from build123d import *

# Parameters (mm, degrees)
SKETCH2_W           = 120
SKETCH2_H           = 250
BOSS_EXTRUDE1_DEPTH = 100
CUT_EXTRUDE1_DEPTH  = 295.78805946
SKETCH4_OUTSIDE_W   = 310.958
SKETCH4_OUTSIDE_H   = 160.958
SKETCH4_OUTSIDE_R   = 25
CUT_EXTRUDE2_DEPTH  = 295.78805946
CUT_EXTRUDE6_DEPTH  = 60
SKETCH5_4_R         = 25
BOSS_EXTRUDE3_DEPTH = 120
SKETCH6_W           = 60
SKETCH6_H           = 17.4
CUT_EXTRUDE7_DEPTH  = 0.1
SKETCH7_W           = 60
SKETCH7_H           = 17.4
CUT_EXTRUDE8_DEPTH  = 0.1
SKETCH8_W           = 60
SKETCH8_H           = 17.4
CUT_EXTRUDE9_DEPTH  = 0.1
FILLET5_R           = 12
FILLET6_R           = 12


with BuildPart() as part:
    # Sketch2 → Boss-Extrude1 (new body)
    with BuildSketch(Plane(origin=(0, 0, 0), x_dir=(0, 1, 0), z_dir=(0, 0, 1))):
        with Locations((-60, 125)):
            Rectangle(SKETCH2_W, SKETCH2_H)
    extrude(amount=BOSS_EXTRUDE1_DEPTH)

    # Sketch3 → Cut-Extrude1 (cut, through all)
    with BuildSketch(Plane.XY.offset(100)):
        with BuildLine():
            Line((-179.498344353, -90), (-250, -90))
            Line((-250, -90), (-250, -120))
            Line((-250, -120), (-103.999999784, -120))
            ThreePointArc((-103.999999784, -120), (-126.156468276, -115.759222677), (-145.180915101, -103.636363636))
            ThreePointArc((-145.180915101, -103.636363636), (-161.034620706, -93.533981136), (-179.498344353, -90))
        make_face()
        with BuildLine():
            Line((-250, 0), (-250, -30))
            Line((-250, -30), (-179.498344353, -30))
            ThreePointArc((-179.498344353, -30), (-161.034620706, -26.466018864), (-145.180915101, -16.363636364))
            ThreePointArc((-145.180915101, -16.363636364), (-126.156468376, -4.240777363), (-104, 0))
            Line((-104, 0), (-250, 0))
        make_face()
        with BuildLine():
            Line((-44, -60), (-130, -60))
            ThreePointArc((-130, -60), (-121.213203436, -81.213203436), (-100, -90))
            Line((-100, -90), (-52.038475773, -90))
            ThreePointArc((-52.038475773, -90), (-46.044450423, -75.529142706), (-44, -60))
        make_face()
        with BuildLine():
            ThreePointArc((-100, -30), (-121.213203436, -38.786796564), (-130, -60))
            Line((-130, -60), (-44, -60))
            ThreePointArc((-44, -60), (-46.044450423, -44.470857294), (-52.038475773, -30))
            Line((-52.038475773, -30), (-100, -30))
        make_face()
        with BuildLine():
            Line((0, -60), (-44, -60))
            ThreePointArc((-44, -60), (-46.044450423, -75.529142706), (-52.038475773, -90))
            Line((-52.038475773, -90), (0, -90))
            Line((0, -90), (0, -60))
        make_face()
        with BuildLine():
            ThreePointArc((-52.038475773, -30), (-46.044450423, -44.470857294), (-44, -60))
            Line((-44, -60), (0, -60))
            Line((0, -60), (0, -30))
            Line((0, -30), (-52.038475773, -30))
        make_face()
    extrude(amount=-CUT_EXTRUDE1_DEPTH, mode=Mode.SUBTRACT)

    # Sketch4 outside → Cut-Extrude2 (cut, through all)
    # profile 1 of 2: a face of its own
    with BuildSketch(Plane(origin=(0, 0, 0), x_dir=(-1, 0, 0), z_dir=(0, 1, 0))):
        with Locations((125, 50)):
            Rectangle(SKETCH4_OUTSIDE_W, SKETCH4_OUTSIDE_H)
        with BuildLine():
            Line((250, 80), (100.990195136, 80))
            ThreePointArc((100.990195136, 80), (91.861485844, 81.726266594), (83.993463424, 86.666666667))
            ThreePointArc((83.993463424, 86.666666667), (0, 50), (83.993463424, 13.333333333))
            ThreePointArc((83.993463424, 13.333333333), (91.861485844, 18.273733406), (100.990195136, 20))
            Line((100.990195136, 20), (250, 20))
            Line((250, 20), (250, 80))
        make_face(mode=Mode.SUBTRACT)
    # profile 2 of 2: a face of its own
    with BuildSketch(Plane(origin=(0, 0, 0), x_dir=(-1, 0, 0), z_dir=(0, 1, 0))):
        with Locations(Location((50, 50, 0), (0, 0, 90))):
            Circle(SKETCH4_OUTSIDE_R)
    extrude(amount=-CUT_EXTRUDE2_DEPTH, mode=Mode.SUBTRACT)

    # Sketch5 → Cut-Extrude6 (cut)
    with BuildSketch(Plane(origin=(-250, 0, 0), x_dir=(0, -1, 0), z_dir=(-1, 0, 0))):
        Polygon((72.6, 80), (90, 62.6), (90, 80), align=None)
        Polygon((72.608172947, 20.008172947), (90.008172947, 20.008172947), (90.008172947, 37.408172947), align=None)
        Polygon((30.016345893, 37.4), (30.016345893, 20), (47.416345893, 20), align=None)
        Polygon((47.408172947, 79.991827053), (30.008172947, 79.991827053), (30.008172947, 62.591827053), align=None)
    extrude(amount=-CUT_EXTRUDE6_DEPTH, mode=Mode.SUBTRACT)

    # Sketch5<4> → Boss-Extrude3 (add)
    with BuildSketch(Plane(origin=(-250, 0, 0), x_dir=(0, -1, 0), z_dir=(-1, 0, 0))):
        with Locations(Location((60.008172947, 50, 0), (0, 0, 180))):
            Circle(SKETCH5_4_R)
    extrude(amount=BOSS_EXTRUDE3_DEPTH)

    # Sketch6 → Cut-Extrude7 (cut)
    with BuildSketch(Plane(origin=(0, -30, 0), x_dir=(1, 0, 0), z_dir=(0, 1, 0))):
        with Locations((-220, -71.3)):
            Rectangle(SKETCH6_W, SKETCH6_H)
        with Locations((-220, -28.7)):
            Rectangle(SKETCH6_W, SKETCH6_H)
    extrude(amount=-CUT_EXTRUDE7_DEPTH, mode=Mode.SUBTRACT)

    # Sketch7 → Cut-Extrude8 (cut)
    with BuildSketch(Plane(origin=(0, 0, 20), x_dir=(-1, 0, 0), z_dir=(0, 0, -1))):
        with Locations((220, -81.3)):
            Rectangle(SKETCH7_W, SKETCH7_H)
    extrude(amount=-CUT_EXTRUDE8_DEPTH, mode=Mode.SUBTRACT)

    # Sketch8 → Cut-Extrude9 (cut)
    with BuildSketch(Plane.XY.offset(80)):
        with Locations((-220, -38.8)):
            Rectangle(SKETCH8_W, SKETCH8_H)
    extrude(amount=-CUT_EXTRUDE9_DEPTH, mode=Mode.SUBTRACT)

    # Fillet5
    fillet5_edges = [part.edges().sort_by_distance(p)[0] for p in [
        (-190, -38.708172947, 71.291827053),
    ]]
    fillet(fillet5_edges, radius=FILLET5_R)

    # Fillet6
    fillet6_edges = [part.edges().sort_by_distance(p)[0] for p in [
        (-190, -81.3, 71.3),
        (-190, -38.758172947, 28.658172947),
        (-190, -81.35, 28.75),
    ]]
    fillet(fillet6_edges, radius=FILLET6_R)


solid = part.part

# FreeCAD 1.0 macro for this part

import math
import FreeCAD as App
import Part
import Sketcher

V = App.Vector


def edges_at(feature, points):
    """Names of the edges that pass closest to the given points."""
    edges = feature.Shape.Edges
    near = lambda p: min(range(len(edges)), key=lambda i: edges[i].distToShape(Part.Vertex(*p))[0])
    return sorted({f"Edge{near(p) + 1}" for p in points})


def add_polygon(sketch, points):
    """Adds a closed chain of lines whose ends are joined by coincident constraints."""
    first, n = sketch.GeometryCount, len(points)
    for a, b in zip(points, points[1:] + points[:1]):
        sketch.addGeometry(Part.LineSegment(App.Vector(*a, 0), App.Vector(*b, 0)), False)
    for i in range(n):
        sketch.addConstraint(Sketcher.Constraint("Coincident", first + i, 2, first + (i + 1) % n, 1))

doc = App.newDocument("Part")
body = doc.addObject("PartDesign::Body", "Body")

# Sketch on XY plane
sketch1 = body.newObject("Sketcher::SketchObject", "Sketch")
sketch1.AttachmentSupport = (doc.getObject("XY_Plane"), [""])
sketch1.MapMode = "FlatFace"
add_polygon(sketch1, [(-250, -120), (0, -120), (0, 0), (-250, 0)])  # lines 0-3
sketch1.addConstraint(Sketcher.Constraint("Horizontal", 0))
sketch1.addConstraint(Sketcher.Constraint("Vertical", 1))
sketch1.addConstraint(Sketcher.Constraint("Horizontal", 2))
sketch1.addConstraint(Sketcher.Constraint("Vertical", 3))
sketch1.addConstraint(Sketcher.Constraint("Coincident", 1, 2, -1, 1))
sketch1.addConstraint(Sketcher.Constraint("DistanceX", 0, 1, 0, 2, 250.0))
sketch1.addConstraint(Sketcher.Constraint("DistanceY", 1, 1, 1, 2, 120.0))
pad1 = body.newObject("PartDesign::Pad", "Pad")
pad1.Profile = sketch1
pad1.Length = 100

# Sketch on XY plane
sketch2 = body.newObject("Sketcher::SketchObject", "Sketch001")
sketch2.AttachmentSupport = (doc.getObject("XY_Plane"), [""])
sketch2.MapMode = "FlatFace"
sketch2.AttachmentOffset = App.Placement(V(0, 0, 100), App.Rotation())
sketch2.addGeometry(Part.LineSegment(V(-179, -90, 0), V(-250, -90, 0)), False)
sketch2.addGeometry(Part.LineSegment(V(-250, -90, 0), V(-250, -120, 0)), False)
sketch2.addGeometry(Part.LineSegment(V(-250, -120, 0), V(-104, -120, 0)), False)
sketch2.addGeometry(Part.ArcOfCircle(Part.Circle(V(-104, -60, 0), V(0, 0, 1), 60), math.radians(-133), math.radians(-90)), False)
sketch2.addGeometry(Part.ArcOfCircle(Part.Circle(V(-179, -140, 0), V(0, 0, 1), 50), math.radians(47), math.radians(90)), False)
sketch2.addGeometry(Part.LineSegment(V(-250, 0, 0), V(-250, -30, 0)), False)
sketch2.addGeometry(Part.LineSegment(V(-250, -30, 0), V(-179, -30, 0)), False)
sketch2.addGeometry(Part.ArcOfCircle(Part.Circle(V(-179, 20, 0), V(0, 0, 1), 50), math.radians(-90), math.radians(-47)), False)
sketch2.addGeometry(Part.ArcOfCircle(Part.Circle(V(-104, -60, 0), V(0, 0, 1), 60), math.radians(90), math.radians(133)), False)
sketch2.addGeometry(Part.LineSegment(V(-104, 0, 0), V(-250, 0, 0)), False)
sketch2.addGeometry(Part.ArcOfCircle(Part.Circle(V(-100, -60, 0), V(0, 0, 1), 30), math.radians(180), math.radians(270)), False)
sketch2.addGeometry(Part.LineSegment(V(-100, -90, 0), V(0, -90, 0)), False)
sketch2.addGeometry(Part.LineSegment(V(0, -90, 0), V(0, -30, 0)), False)
sketch2.addGeometry(Part.LineSegment(V(0, -30, 0), V(-100, -30, 0)), False)
sketch2.addGeometry(Part.ArcOfCircle(Part.Circle(V(-100, -60, 0), V(0, 0, 1), 30), math.radians(90), math.radians(180)), False)
sketch2.addConstraint(Sketcher.Constraint("Coincident", 0, 2, 1, 1))
sketch2.addConstraint(Sketcher.Constraint("Coincident", 1, 2, 2, 1))
sketch2.addConstraint(Sketcher.Constraint("Tangent", 2, 2, 3, 2))
sketch2.addConstraint(Sketcher.Constraint("Tangent", 3, 1, 4, 1))
sketch2.addConstraint(Sketcher.Constraint("Tangent", 4, 2, 0, 1))
sketch2.addConstraint(Sketcher.Constraint("Coincident", 5, 2, 6, 1))
sketch2.addConstraint(Sketcher.Constraint("Tangent", 6, 2, 7, 1))
sketch2.addConstraint(Sketcher.Constraint("Tangent", 7, 2, 8, 2))
sketch2.addConstraint(Sketcher.Constraint("Tangent", 8, 1, 9, 1))
sketch2.addConstraint(Sketcher.Constraint("Coincident", 9, 2, 5, 1))
sketch2.addConstraint(Sketcher.Constraint("Tangent", 10, 2, 11, 1))
sketch2.addConstraint(Sketcher.Constraint("Coincident", 11, 2, 12, 1))
sketch2.addConstraint(Sketcher.Constraint("Coincident", 12, 2, 13, 1))
sketch2.addConstraint(Sketcher.Constraint("Tangent", 13, 2, 14, 1))
sketch2.addConstraint(Sketcher.Constraint("Tangent", 14, 2, 10, 1))
sketch2.addConstraint(Sketcher.Constraint("Horizontal", 0))
sketch2.addConstraint(Sketcher.Constraint("Vertical", 1))
sketch2.addConstraint(Sketcher.Constraint("Horizontal", 2))
sketch2.addConstraint(Sketcher.Constraint("Vertical", 5))
sketch2.addConstraint(Sketcher.Constraint("Horizontal", 6))
sketch2.addConstraint(Sketcher.Constraint("Horizontal", 9))
sketch2.addConstraint(Sketcher.Constraint("Horizontal", 11))
sketch2.addConstraint(Sketcher.Constraint("Vertical", 12))
sketch2.addConstraint(Sketcher.Constraint("Horizontal", 13))
sketch2.addConstraint(Sketcher.Constraint("Coincident", 8, 3, 3, 3))
sketch2.addConstraint(Sketcher.Constraint("Equal", 4, 7))
sketch2.addConstraint(Sketcher.Constraint("Equal", 3, 8))
sketch2.addConstraint(Sketcher.Constraint("Equal", 10, 14))
sketch2.addConstraint(Sketcher.Constraint("PointOnObject", 8, 1, -1))
sketch2.addConstraint(Sketcher.Constraint("PointOnObject", 11, 2, -2))
sketch2.addConstraint(Sketcher.Constraint("Horizontal", 8, 3, 10, 3))
sketch2.addConstraint(Sketcher.Constraint("Horizontal", 4, 2, 10, 2))
sketch2.addConstraint(Sketcher.Constraint("Horizontal", 6, 2, 12, 2))
sketch2.addConstraint(Sketcher.Constraint("Horizontal", 10, 3, 14, 2))
sketch2.addConstraint(Sketcher.Constraint("Vertical", 1, 2, 5, 2))
sketch2.addConstraint(Sketcher.Constraint("Radius", 3, 60.0))
sketch2.addConstraint(Sketcher.Constraint("Radius", 4, 50.0))
sketch2.addConstraint(Sketcher.Constraint("Radius", 10, 30.0))
sketch2.addConstraint(Sketcher.Constraint("DistanceX", 2, 1, 2, 2, 146.0))
sketch2.addConstraint(Sketcher.Constraint("DistanceX", 11, 1, 11, 2, 100.0))
sketch2.addConstraint(Sketcher.Constraint("DistanceX", 3, 3, -1, 1, 104.0))
pocket1 = body.newObject("PartDesign::Pocket", "Pocket")
pocket1.Profile = sketch2
pocket1.Type = "ThroughAll"

# Sketch on XZ plane
sketch3 = body.newObject("Sketcher::SketchObject", "Sketch002")
sketch3.AttachmentSupport = (doc.getObject("XZ_Plane"), [""])
sketch3.MapMode = "FlatFace"
add_polygon(sketch3, [(30, 130), (30, -30), (-280, -30), (-280, 130)])  # lines 0-3
sketch3.addGeometry(Part.LineSegment(V(-101, 80, 0), V(-250, 80, 0)), False)  # 4
sketch3.addGeometry(Part.LineSegment(V(-250, 80, 0), V(-250, 20, 0)), False)  # 5
sketch3.addGeometry(Part.LineSegment(V(-250, 20, 0), V(-101, 20, 0)), False)  # 6
sketch3.addGeometry(Part.ArcOfCircle(Part.Circle(V(-101, -5, 0), V(0, 0, 1), 25), math.radians(47), math.radians(90)), False)  # 7
sketch3.addGeometry(Part.ArcOfCircle(Part.Circle(V(-50, 50, 0), V(0, 0, 1), 50), math.radians(-133), math.radians(133)), False)  # 8
sketch3.addGeometry(Part.ArcOfCircle(Part.Circle(V(-101, 105, 0), V(0, 0, 1), 25), math.radians(-90), math.radians(-47)), False)  # 9
sketch3.addGeometry(Part.Circle(V(-50, 50, 0), V(0, 0, 1), 25), False)  # 10
sketch3.addConstraint(Sketcher.Constraint("Coincident", 4, 2, 5, 1))
sketch3.addConstraint(Sketcher.Constraint("Coincident", 5, 2, 6, 1))
sketch3.addConstraint(Sketcher.Constraint("Tangent", 6, 2, 7, 2))
sketch3.addConstraint(Sketcher.Constraint("Tangent", 7, 1, 8, 1))
sketch3.addConstraint(Sketcher.Constraint("Tangent", 8, 2, 9, 2))
sketch3.addConstraint(Sketcher.Constraint("Tangent", 9, 1, 4, 1))
sketch3.addConstraint(Sketcher.Constraint("Vertical", 0))
sketch3.addConstraint(Sketcher.Constraint("Horizontal", 1))
sketch3.addConstraint(Sketcher.Constraint("Vertical", 2))
sketch3.addConstraint(Sketcher.Constraint("Horizontal", 3))
sketch3.addConstraint(Sketcher.Constraint("Horizontal", 4))
sketch3.addConstraint(Sketcher.Constraint("Vertical", 5))
sketch3.addConstraint(Sketcher.Constraint("Horizontal", 6))
sketch3.addConstraint(Sketcher.Constraint("Coincident", 10, 3, 8, 3))
sketch3.addConstraint(Sketcher.Constraint("Equal", 7, 9))
sketch3.addConstraint(Sketcher.Constraint("Equal", 9, 10))
sketch3.addConstraint(Sketcher.Constraint("Vertical", 7, 3, 9, 3))
sketch3.addConstraint(Sketcher.Constraint("Diameter", 10, 50.0))
sketch3.addConstraint(Sketcher.Constraint("Radius", 8, 50.0))
sketch3.addConstraint(Sketcher.Constraint("DistanceY", 5, 2, 5, 1, 60.0))
sketch3.addConstraint(Sketcher.Constraint("DistanceY", 7, 3, -1, 1, 5.0))
sketch3.addConstraint(Sketcher.Constraint("DistanceX", 8, 3, -1, 1, 50.0))
sketch3.addConstraint(Sketcher.Constraint("DistanceX", 4, 2, -1, 1, 250.0))
sketch3.addConstraint(Sketcher.Constraint("DistanceX", 1, 2, 1, 1, 310.958))
sketch3.addConstraint(Sketcher.Constraint("DistanceY", 0, 2, 0, 1, 160.958))
sketch3.addConstraint(Sketcher.Constraint("DistanceX", -1, 1, 0, 2, 30.479))
sketch3.addConstraint(Sketcher.Constraint("DistanceY", 0, 2, -1, 1, 30.479))
pocket2 = body.newObject("PartDesign::Pocket", "Pocket001")
pocket2.Profile = sketch3
pocket2.Length = 295.788059
pocket2.Reversed = True

# Sketch on YZ plane
sketch4 = body.newObject("Sketcher::SketchObject", "Sketch003")
sketch4.AttachmentSupport = (doc.getObject("YZ_Plane"), [""])
sketch4.MapMode = "FlatFace"
sketch4.AttachmentOffset = App.Placement(V(0, 0, -250), App.Rotation())
add_polygon(sketch4, [(-73, 80), (-90, 63), (-90, 80)])  # lines 0-2
add_polygon(sketch4, [(-73, 20), (-90, 20), (-90, 37)])  # lines 3-5
add_polygon(sketch4, [(-30, 37), (-30, 20), (-47, 20)])  # lines 6-8
add_polygon(sketch4, [(-47, 80), (-30, 80), (-30, 63)])  # lines 9-11
sketch4.addConstraint(Sketcher.Constraint("Vertical", 1))
sketch4.addConstraint(Sketcher.Constraint("Horizontal", 2))
sketch4.addConstraint(Sketcher.Constraint("Horizontal", 3))
sketch4.addConstraint(Sketcher.Constraint("Vertical", 4))
sketch4.addConstraint(Sketcher.Constraint("Vertical", 6))
sketch4.addConstraint(Sketcher.Constraint("Horizontal", 7))
sketch4.addConstraint(Sketcher.Constraint("Horizontal", 9))
sketch4.addConstraint(Sketcher.Constraint("Vertical", 10))
sketch4.addConstraint(Sketcher.Constraint("Perpendicular", 0, 5))
sketch4.addConstraint(Sketcher.Constraint("Perpendicular", 5, 8))
sketch4.addConstraint(Sketcher.Constraint("Perpendicular", 8, 11))
sketch4.addConstraint(Sketcher.Constraint("Equal", 2, 3))
sketch4.addConstraint(Sketcher.Constraint("Equal", 3, 7))
sketch4.addConstraint(Sketcher.Constraint("Equal", 7, 9))
sketch4.addConstraint(Sketcher.Constraint("Equal", 9, 1))
sketch4.addConstraint(Sketcher.Constraint("DistanceX", 2, 1, 2, 2, 17.4))
sketch4.addConstraint(Sketcher.Constraint("DistanceX", 0, 2, -1, 1, 90.0))
sketch4.addConstraint(Sketcher.Constraint("DistanceY", -1, 1, 1, 2, 80.0))
sketch4.addConstraint(Sketcher.Constraint("DistanceY", -1, 1, 6, 2, 20.0))
sketch4.addConstraint(Sketcher.Constraint("DistanceX", 3, 2, -1, 1, 90.008173))
sketch4.addConstraint(Sketcher.Constraint("DistanceY", -1, 1, 3, 2, 20.008173))
sketch4.addConstraint(Sketcher.Constraint("DistanceX", 6, 2, -1, 1, 30.016346))
sketch4.addConstraint(Sketcher.Constraint("DistanceX", 9, 2, -1, 1, 30.008173))
sketch4.addConstraint(Sketcher.Constraint("DistanceY", -1, 1, 9, 2, 79.991827))
pocket3 = body.newObject("PartDesign::Pocket", "Pocket002")
pocket3.Profile = sketch4
pocket3.Length = 60
pocket3.Reversed = True

# Sketch on YZ plane
sketch5 = body.newObject("Sketcher::SketchObject", "Sketch004")
sketch5.AttachmentSupport = (doc.getObject("YZ_Plane"), [""])
sketch5.MapMode = "FlatFace"
sketch5.AttachmentOffset = App.Placement(V(0, 0, -250), App.Rotation())
sketch5.addGeometry(Part.Circle(V(-60, 50, 0), V(0, 0, 1), 25), False)
sketch5.addConstraint(Sketcher.Constraint("Diameter", 0, 50.0))
sketch5.addConstraint(Sketcher.Constraint("DistanceY", -1, 1, 0, 3, 50.0))
sketch5.addConstraint(Sketcher.Constraint("DistanceX", 0, 3, -1, 1, 60.008173))
pad2 = body.newObject("PartDesign::Pad", "Pad001")
pad2.Profile = sketch5
pad2.Length = 120
pad2.Reversed = True

# Sketch on XZ plane
sketch6 = body.newObject("Sketcher::SketchObject", "Sketch005")
sketch6.AttachmentSupport = (doc.getObject("XZ_Plane"), [""])
sketch6.MapMode = "FlatFace"
sketch6.AttachmentOffset = App.Placement(V(0, 0, 30), App.Rotation())
add_polygon(sketch6, [(-250, 63), (-250, 80), (-190, 80), (-190, 63)])  # lines 0-3
add_polygon(sketch6, [(-250, 20), (-250, 37), (-190, 37), (-190, 20)])  # lines 4-7
sketch6.addConstraint(Sketcher.Constraint("Vertical", 0))
sketch6.addConstraint(Sketcher.Constraint("Horizontal", 1))
sketch6.addConstraint(Sketcher.Constraint("Vertical", 2))
sketch6.addConstraint(Sketcher.Constraint("Horizontal", 3))
sketch6.addConstraint(Sketcher.Constraint("Vertical", 4))
sketch6.addConstraint(Sketcher.Constraint("Horizontal", 5))
sketch6.addConstraint(Sketcher.Constraint("Vertical", 6))
sketch6.addConstraint(Sketcher.Constraint("Horizontal", 7))
sketch6.addConstraint(Sketcher.Constraint("Vertical", 3, 2, 4, 2))
sketch6.addConstraint(Sketcher.Constraint("Vertical", 2, 2, 5, 2))
sketch6.addConstraint(Sketcher.Constraint("Equal", 2, 4))
sketch6.addConstraint(Sketcher.Constraint("DistanceX", 1, 1, 1, 2, 60.0))
sketch6.addConstraint(Sketcher.Constraint("DistanceY", 0, 1, 0, 2, 17.4))
sketch6.addConstraint(Sketcher.Constraint("DistanceX", 0, 2, -1, 1, 250.0))
sketch6.addConstraint(Sketcher.Constraint("DistanceY", -1, 1, 0, 2, 80.0))
sketch6.addConstraint(Sketcher.Constraint("DistanceY", -1, 1, 6, 2, 20.0))
pocket4 = body.newObject("PartDesign::Pocket", "Pocket003")
pocket4.Profile = sketch6
pocket4.Length = 0.1
pocket4.Reversed = True

# Sketch on XY plane
sketch7 = body.newObject("Sketcher::SketchObject", "Sketch006")
sketch7.AttachmentSupport = (doc.getObject("XY_Plane"), [""])
sketch7.MapMode = "FlatFace"
sketch7.AttachmentOffset = App.Placement(V(0, 0, 20), App.Rotation())
add_polygon(sketch7, [(-190, -73), (-190, -90), (-250, -90), (-250, -73)])  # lines 0-3
sketch7.addConstraint(Sketcher.Constraint("Vertical", 0))
sketch7.addConstraint(Sketcher.Constraint("Horizontal", 1))
sketch7.addConstraint(Sketcher.Constraint("Vertical", 2))
sketch7.addConstraint(Sketcher.Constraint("Horizontal", 3))
sketch7.addConstraint(Sketcher.Constraint("DistanceX", 1, 2, 1, 1, 60.0))
sketch7.addConstraint(Sketcher.Constraint("DistanceY", 0, 2, 0, 1, 17.4))
sketch7.addConstraint(Sketcher.Constraint("DistanceX", 0, 2, -1, 1, 190.0))
sketch7.addConstraint(Sketcher.Constraint("DistanceY", 0, 2, -1, 1, 90.0))
pocket5 = body.newObject("PartDesign::Pocket", "Pocket004")
pocket5.Profile = sketch7
pocket5.Length = 0.1
pocket5.Reversed = True

# Sketch on XY plane
sketch8 = body.newObject("Sketcher::SketchObject", "Sketch007")
sketch8.AttachmentSupport = (doc.getObject("XY_Plane"), [""])
sketch8.MapMode = "FlatFace"
sketch8.AttachmentOffset = App.Placement(V(0, 0, 80), App.Rotation())
add_polygon(sketch8, [(-250, -30), (-250, -48), (-190, -48), (-190, -30)])  # lines 0-3
sketch8.addConstraint(Sketcher.Constraint("Vertical", 0))
sketch8.addConstraint(Sketcher.Constraint("Horizontal", 1))
sketch8.addConstraint(Sketcher.Constraint("Vertical", 2))
sketch8.addConstraint(Sketcher.Constraint("Horizontal", 3))
sketch8.addConstraint(Sketcher.Constraint("DistanceX", 1, 1, 1, 2, 60.0))
sketch8.addConstraint(Sketcher.Constraint("DistanceY", 0, 2, 0, 1, 17.4))
sketch8.addConstraint(Sketcher.Constraint("DistanceX", 0, 2, -1, 1, 250.0))
sketch8.addConstraint(Sketcher.Constraint("DistanceY", 0, 2, -1, 1, 47.5))
pocket6 = body.newObject("PartDesign::Pocket", "Pocket005")
pocket6.Profile = sketch8
pocket6.Length = 0.1
doc.recompute()

fillet = body.newObject("PartDesign::Fillet", "Fillet")
fillet.Base = (pocket6, edges_at(pocket6, [(-190, -38.708, 71.292)]))
fillet.Radius = 12
doc.recompute()

fillet2 = body.newObject("PartDesign::Fillet", "Fillet001")
fillet2.Base = (fillet, edges_at(fillet, [(-190, -81.3, 71.3), (-190, -38.758, 28.658), (-190, -81.35, 28.75)]))
fillet2.Radius = 12

doc.recompute()
